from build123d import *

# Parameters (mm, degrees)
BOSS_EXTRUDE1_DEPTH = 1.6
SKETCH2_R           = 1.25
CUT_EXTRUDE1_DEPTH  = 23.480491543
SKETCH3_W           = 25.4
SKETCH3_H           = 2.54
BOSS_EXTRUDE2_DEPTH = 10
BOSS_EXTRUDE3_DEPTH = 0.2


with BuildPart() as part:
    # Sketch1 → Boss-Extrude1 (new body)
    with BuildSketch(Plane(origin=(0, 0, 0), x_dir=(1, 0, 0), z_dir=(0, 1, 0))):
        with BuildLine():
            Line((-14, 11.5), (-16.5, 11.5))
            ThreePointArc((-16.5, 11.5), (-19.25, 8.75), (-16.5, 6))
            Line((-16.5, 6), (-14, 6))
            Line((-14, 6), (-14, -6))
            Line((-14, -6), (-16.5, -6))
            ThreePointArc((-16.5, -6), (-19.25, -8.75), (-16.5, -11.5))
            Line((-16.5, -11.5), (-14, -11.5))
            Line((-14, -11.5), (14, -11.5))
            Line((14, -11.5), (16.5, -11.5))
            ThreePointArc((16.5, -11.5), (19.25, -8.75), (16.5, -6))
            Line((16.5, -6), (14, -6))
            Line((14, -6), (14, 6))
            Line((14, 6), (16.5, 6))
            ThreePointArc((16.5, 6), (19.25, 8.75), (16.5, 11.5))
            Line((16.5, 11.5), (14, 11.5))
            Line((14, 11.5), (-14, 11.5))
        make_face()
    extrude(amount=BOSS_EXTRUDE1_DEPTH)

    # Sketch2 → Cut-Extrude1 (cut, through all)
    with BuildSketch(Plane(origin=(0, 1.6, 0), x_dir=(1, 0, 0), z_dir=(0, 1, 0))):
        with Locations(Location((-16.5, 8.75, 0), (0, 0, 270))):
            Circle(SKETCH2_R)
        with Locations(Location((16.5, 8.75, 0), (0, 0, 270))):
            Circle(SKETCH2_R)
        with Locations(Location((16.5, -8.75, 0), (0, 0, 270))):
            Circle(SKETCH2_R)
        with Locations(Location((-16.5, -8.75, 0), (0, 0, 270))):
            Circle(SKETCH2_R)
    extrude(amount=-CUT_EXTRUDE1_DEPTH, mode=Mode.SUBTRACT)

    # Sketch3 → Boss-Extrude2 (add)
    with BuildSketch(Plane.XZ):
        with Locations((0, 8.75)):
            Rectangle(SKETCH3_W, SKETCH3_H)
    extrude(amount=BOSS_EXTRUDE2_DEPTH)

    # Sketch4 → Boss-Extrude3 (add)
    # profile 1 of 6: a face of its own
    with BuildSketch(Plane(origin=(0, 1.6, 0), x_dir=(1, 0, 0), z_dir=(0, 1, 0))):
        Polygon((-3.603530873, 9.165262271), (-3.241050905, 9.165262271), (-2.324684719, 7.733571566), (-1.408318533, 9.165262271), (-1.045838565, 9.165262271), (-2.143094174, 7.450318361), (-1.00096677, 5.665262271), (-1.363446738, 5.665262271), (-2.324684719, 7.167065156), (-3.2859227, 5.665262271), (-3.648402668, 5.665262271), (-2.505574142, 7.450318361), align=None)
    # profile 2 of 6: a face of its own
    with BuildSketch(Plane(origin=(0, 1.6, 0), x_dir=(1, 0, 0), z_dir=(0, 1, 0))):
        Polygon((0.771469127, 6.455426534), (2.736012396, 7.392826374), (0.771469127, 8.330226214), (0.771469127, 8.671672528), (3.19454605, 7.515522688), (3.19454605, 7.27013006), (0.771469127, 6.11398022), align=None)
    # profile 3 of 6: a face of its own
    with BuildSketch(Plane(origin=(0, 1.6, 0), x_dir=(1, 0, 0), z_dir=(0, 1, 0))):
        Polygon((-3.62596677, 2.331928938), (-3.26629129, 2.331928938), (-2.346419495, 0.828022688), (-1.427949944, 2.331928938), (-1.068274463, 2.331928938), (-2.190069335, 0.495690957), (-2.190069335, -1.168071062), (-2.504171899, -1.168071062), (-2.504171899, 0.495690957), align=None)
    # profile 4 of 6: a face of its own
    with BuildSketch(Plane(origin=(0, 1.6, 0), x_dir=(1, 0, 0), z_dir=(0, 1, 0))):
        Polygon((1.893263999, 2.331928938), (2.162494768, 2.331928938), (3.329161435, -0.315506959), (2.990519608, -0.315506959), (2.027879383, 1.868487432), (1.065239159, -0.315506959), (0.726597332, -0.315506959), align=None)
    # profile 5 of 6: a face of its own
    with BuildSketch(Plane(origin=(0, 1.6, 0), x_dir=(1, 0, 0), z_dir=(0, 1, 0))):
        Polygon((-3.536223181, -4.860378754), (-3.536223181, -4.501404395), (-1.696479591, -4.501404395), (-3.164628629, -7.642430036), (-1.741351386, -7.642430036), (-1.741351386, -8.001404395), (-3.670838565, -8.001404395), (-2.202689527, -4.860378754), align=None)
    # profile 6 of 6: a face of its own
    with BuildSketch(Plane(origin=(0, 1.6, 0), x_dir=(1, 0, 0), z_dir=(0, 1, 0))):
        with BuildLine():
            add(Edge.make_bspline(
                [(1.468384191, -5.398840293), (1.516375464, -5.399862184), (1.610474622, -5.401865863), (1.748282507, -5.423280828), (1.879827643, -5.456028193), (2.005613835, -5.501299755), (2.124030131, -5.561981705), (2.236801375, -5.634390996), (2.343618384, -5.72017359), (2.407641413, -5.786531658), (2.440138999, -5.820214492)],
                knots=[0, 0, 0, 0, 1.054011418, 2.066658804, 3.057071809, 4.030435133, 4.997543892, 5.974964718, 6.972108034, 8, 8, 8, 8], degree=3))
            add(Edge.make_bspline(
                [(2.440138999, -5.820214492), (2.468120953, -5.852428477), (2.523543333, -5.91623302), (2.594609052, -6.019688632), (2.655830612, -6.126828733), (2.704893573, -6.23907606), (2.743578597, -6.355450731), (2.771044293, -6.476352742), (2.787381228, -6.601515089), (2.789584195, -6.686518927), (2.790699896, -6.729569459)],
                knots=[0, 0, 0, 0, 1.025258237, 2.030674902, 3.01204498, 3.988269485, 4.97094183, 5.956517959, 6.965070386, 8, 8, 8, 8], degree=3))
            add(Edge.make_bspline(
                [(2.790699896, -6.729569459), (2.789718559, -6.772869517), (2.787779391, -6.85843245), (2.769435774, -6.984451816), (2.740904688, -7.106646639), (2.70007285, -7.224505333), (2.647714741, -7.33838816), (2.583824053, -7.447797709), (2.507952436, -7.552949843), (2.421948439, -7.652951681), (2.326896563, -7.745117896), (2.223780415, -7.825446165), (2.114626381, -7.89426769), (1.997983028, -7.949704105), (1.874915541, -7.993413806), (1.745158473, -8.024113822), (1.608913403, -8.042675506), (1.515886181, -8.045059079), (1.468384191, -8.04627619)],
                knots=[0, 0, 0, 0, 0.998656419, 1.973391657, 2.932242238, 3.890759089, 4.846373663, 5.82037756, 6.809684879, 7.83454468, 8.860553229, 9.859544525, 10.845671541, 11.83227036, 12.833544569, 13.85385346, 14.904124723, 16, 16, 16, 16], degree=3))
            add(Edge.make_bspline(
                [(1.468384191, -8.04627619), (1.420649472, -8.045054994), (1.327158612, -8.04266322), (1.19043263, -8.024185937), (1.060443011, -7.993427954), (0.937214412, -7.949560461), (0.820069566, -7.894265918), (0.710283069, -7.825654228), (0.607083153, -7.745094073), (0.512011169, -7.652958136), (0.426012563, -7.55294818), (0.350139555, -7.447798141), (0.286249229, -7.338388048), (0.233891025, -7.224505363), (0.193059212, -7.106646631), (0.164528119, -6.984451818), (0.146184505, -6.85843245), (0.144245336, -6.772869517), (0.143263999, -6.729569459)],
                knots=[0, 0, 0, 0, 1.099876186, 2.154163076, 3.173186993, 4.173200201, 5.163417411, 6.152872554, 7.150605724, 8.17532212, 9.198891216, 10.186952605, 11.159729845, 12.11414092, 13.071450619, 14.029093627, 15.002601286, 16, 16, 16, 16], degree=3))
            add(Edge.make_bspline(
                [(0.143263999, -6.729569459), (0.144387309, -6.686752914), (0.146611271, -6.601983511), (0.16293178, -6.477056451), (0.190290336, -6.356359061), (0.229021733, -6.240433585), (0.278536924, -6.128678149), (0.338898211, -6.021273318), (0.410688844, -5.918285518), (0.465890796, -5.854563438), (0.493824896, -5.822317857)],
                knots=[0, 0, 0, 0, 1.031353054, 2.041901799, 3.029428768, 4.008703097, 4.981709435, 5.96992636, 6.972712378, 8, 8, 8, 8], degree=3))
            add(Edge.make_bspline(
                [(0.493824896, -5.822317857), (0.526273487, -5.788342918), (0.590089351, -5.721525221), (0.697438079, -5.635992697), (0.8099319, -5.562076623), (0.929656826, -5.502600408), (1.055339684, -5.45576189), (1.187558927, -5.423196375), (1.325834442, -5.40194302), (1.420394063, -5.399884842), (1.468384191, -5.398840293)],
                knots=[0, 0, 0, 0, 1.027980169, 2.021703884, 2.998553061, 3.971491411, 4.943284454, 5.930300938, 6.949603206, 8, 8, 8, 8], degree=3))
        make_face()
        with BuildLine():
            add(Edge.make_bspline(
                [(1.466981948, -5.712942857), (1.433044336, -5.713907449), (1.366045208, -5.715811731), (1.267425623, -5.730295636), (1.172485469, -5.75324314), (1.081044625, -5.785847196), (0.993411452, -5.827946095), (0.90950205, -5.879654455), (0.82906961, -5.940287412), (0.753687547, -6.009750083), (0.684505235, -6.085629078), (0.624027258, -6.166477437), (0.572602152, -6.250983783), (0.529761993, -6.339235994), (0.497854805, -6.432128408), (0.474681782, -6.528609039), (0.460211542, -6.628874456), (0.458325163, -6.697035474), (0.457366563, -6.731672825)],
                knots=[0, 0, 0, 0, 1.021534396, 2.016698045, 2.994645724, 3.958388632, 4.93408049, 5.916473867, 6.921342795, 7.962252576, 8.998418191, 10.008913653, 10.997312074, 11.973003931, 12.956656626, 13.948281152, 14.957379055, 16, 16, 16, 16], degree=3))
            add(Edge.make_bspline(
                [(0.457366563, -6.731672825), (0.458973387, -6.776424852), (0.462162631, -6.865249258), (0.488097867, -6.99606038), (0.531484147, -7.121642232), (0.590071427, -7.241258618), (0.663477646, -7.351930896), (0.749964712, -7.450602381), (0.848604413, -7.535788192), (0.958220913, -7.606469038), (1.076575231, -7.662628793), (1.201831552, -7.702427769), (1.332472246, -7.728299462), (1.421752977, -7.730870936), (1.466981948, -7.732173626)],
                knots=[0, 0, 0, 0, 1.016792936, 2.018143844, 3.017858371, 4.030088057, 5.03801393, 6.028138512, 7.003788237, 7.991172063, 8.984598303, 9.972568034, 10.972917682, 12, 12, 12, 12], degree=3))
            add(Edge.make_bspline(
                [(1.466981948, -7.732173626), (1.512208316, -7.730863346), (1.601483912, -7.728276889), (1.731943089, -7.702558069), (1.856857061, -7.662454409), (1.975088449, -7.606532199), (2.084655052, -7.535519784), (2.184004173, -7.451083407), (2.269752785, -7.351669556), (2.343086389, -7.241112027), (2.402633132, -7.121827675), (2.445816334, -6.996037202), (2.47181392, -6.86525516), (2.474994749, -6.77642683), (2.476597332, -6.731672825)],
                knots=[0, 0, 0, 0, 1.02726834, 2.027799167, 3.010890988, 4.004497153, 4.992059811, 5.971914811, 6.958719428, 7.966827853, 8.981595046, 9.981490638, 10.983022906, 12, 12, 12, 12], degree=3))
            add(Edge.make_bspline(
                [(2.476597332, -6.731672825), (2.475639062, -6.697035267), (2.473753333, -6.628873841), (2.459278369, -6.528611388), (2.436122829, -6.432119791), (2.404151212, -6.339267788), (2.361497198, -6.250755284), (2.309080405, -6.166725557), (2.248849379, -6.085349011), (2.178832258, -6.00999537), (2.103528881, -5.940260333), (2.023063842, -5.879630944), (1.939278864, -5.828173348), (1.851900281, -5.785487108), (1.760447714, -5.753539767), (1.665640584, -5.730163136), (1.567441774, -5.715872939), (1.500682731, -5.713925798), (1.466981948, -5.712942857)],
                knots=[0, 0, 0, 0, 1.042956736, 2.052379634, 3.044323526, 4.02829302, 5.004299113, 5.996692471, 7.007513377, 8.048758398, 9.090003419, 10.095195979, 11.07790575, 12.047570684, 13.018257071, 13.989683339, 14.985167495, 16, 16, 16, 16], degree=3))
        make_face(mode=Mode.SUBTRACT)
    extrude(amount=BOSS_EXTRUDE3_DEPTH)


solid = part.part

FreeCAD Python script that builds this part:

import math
import FreeCAD as App
import Part
import Sketcher
Q = App.Units.Quantity


def add_polygon(sketch, points):
    """Adds a closed chain of lines whose ends are joined by coincident constraints."""
    first, n = sketch.GeometryCount, len(points)
    for a, b in zip(points, points[1:] + points[:1]):
        sketch.addGeometry(Part.LineSegment(App.Vector(*a, 0), App.Vector(*b, 0)), False)
    for i in range(n):
        sketch.addConstraint(Sketcher.Constraint("Coincident", first + i, 2, first + (i + 1) % n, 1))

doc = App.newDocument("Part")
body = doc.addObject("PartDesign::Body", "Body")

sketch1 = doc.addObject("Sketcher::SketchObject", "Sketch")
body.addObject(sketch1)
sketch1.AttachmentSupport = (doc.XZ_Plane, [""])
sketch1.MapMode = "FlatFace"
sketch1.addGeometry([
    Part.ArcOfCircle(Part.Circle(App.Vector(-16.5, -8.8, 0), App.Vector(0, 0, 1), 2.8), math.radians(90), math.radians(270)),
    Part.LineSegment(App.Vector(-16.5, -6, 0), App.Vector(-14, -6, 0)),
    Part.LineSegment(App.Vector(-14, -6, 0), App.Vector(-14, 6, 0)),
    Part.LineSegment(App.Vector(-14, 6, 0), App.Vector(-16.5, 6, 0)),
    Part.ArcOfCircle(Part.Circle(App.Vector(-16.5, 8.8, 0), App.Vector(0, 0, 1), 2.8), math.radians(90), math.radians(270)),
    Part.LineSegment(App.Vector(-16.5, 11.5, 0), App.Vector(16.5, 11.5, 0)),
    Part.ArcOfCircle(Part.Circle(App.Vector(16.5, 8.8, 0), App.Vector(0, 0, 1), 2.8), math.radians(-90), math.radians(90)),
    Part.LineSegment(App.Vector(16.5, 6, 0), App.Vector(14, 6, 0)),
    Part.LineSegment(App.Vector(14, 6, 0), App.Vector(14, -6, 0)),
    Part.LineSegment(App.Vector(14, -6, 0), App.Vector(16.5, -6, 0)),
    Part.ArcOfCircle(Part.Circle(App.Vector(16.5, -8.8, 0), App.Vector(0, 0, 1), 2.8), math.radians(-90), math.radians(90)),
    Part.LineSegment(App.Vector(16.5, -11.5, 0), App.Vector(-16.5, -11.5, 0)),
], False)
sketch1.addConstraint([
    Sketcher.Constraint("Tangent", 0, 1, 1, 1),
    Sketcher.Constraint("Coincident", 1, 2, 2, 1),
    Sketcher.Constraint("Coincident", 2, 2, 3, 1),
    Sketcher.Constraint("Tangent", 3, 2, 4, 2),
    Sketcher.Constraint("Tangent", 4, 1, 5, 1),
    Sketcher.Constraint("Tangent", 5, 2, 6, 2),
    Sketcher.Constraint("Tangent", 6, 1, 7, 1),
    Sketcher.Constraint("Coincident", 7, 2, 8, 1),
    Sketcher.Constraint("Coincident", 8, 2, 9, 1),
    Sketcher.Constraint("Tangent", 9, 2, 10, 2),
    Sketcher.Constraint("Tangent", 10, 1, 11, 1),
    Sketcher.Constraint("Tangent", 11, 2, 0, 2),
    Sketcher.Constraint("Horizontal", 1),
    Sketcher.Constraint("Vertical", 2),
    Sketcher.Constraint("Horizontal", 3),
    Sketcher.Constraint("Horizontal", 5),
    Sketcher.Constraint("Horizontal", 7),
    Sketcher.Constraint("Vertical", 8),
    Sketcher.Constraint("Horizontal", 9),
    Sketcher.Constraint("Horizontal", 11),
    Sketcher.Constraint("Equal", 0, 4),
    Sketcher.Constraint("Equal", 4, 6),
    Sketcher.Constraint("Equal", 6, 10),
    Sketcher.Constraint("Symmetric", 0, 3, 6, 3, -1, 1),
    Sketcher.Constraint("Vertical", 0, 3, 4, 3),
    Sketcher.Constraint("Vertical", 6, 3, 10, 3),
    Sketcher.Constraint("Equal", 3, 7),
    Sketcher.Constraint("DistanceX", 5, 1, 5, 2, Q("33 mm")),
    Sketcher.Constraint("DistanceY", 2, 1, 2, 2, Q("12 mm")),
    Sketcher.Constraint("Radius", 0, Q("2.75 mm")),
    Sketcher.Constraint("DistanceX", 1, 1, 1, 2, Q("2.5 mm")),
])
pad1 = doc.addObject("PartDesign::Pad", "Pad")
body.addObject(pad1)
pad1.Profile = sketch1
pad1.Length = 1.6
pad1.Reversed = True

sketch2 = doc.addObject("Sketcher::SketchObject", "Sketch001")
body.addObject(sketch2)
sketch2.AttachmentSupport = (doc.XZ_Plane, [""])
sketch2.MapMode = "FlatFace"
sketch2.AttachmentOffset = App.Placement(App.Vector(0, 0, -1.6), App.Rotation())
sketch2.addGeometry([
    Part.Circle(App.Vector(-16.5, -8.8, 0), App.Vector(0, 0, 1), 1.2),
    Part.Circle(App.Vector(16.5, -8.8, 0), App.Vector(0, 0, 1), 1.2),
    Part.Circle(App.Vector(16.5, 8.8, 0), App.Vector(0, 0, 1), 1.2),
    Part.Circle(App.Vector(-16.5, 8.8, 0), App.Vector(0, 0, 1), 1.2),
], False)
sketch2.addConstraint([
    Sketcher.Constraint("Equal", 0, 1),
    Sketcher.Constraint("Equal", 1, 2),
    Sketcher.Constraint("Equal", 2, 3),
    Sketcher.Constraint("Symmetric", 0, 3, 2, 3, -1, 1),
    Sketcher.Constraint("Symmetric", 1, 3, 3, 3, -1, 1),
    Sketcher.Constraint("Symmetric", 0, 3, 1, 3, -2),
    Sketcher.Constraint("Diameter", 0, Q("2.5 mm")),
    Sketcher.Constraint("DistanceX", 0, 3, 1, 3, Q("33 mm")),
    Sketcher.Constraint("DistanceY", 1, 3, 2, 3, Q("17.5 mm")),
])
pocket1 = doc.addObject("PartDesign::Pocket", "Pocket")
body.addObject(pocket1)
pocket1.Profile = sketch2
pocket1.Type = "ThroughAll"
pocket1.Reversed = True

sketch3 = doc.addObject("Sketcher::SketchObject", "Sketch002")
body.addObject(sketch3)
sketch3.AttachmentSupport = (doc.XZ_Plane, [""])
sketch3.MapMode = "FlatFace"
add_polygon(sketch3, [(-12.7, 10), (-12.7, 7.5), (12.7, 7.5), (12.7, 10)])
sketch3.addConstraint([
    Sketcher.Constraint("Vertical", 0),
    Sketcher.Constraint("Horizontal", 1),
    Sketcher.Constraint("Vertical", 2),
    Sketcher.Constraint("Horizontal", 3),
    Sketcher.Constraint("DistanceX", 1, 1, 1, 2, Q("25.4 mm")),
    Sketcher.Constraint("DistanceY", 0, 2, 0, 1, Q("2.54 mm")),
    Sketcher.Constraint("DistanceX", 0, 2, -1, 1, Q("12.7 mm")),
    Sketcher.Constraint("DistanceY", -1, 1, 0, 2, Q("7.48 mm")),
])
pad2 = doc.addObject("PartDesign::Pad", "Pad001")
body.addObject(pad2)
pad2.Profile = sketch3
pad2.Length = 10

sketch4 = doc.addObject("Sketcher::SketchObject", "Sketch003")
body.addObject(sketch4)
sketch4.AttachmentSupport = (doc.XZ_Plane, [""])
sketch4.MapMode = "FlatFace"
sketch4.AttachmentOffset = App.Placement(App.Vector(0, 0, -1.6), App.Rotation())
add_polygon(sketch4, [(-3.241051, -9.165262), (-3.603531, -9.165262), (-2.505574, -7.450318), (-3.648403, -5.665262), (-3.285923, -5.665262), (-2.324685, -7.167065), (-1.363447, -5.665262), (-1.000967, -5.665262), (-2.143094, -7.450318), (-1.045839, -9.165262), (-1.408319, -9.165262), (-2.324685, -7.733572)])
add_polygon(sketch4, [(2.736012, -7.392826), (0.771469, -6.455427), (0.771469, -6.11398), (3.194546, -7.27013), (3.194546, -7.515523), (0.771469, -8.671673), (0.771469, -8.330226)])
add_polygon(sketch4, [(-3.266291, -2.331929), (-3.625967, -2.331929), (-2.504172, -0.495691), (-2.504172, 1.168071), (-2.190069, 1.168071), (-2.190069, -0.495691), (-1.068274, -2.331929), (-1.42795, -2.331929), (-2.346419, -0.828023)])
add_polygon(sketch4, [(2.162495, -2.331929), (1.893264, -2.331929), (0.726597, 0.315507), (1.065239, 0.315507), (2.027879, -1.868487), (2.99052, 0.315507), (3.329161, 0.315507)])
add_polygon(sketch4, [(-3.536223, 4.501404), (-3.536223, 4.860379), (-2.20269, 4.860379), (-3.670839, 8.001404), (-1.741351, 8.001404), (-1.741351, 7.64243), (-3.164629, 7.64243), (-1.69648, 4.501404)])
sketch4.addGeometry(Part.BSplineCurve([App.Vector(1.468384, 5.39884, 0), App.Vector(1.516375, 5.399862, 0), App.Vector(1.610475, 5.401866, 0), App.Vector(1.748283, 5.423281, 0), App.Vector(1.879828, 5.456028, 0), App.Vector(2.005614, 5.5013, 0), App.Vector(2.12403, 5.561982, 0), App.Vector(2.236801, 5.634391, 0), App.Vector(2.343618, 5.720174, 0), App.Vector(2.407641, 5.786532, 0), App.Vector(2.440139, 5.820214, 0)], [4, 1, 1, 1, 1, 1, 1, 1, 4], [0, 1.054011418, 2.066658804, 3.057071809, 4.030435133, 4.997543892, 5.974964718, 6.972108034, 8], False, 3, [1, 1, 1, 1, 1, 1, 1, 1, 1, 1, 1], False), False)
sketch4.addGeometry(Part.BSplineCurve([App.Vector(0.493825, 5.822318, 0), App.Vector(0.526273, 5.788343, 0), App.Vector(0.590089, 5.721525, 0), App.Vector(0.697438, 5.635993, 0), App.Vector(0.809932, 5.562077, 0), App.Vector(0.929657, 5.5026, 0), App.Vector(1.05534, 5.455762, 0), App.Vector(1.187559, 5.423196, 0), App.Vector(1.325834, 5.401943, 0), App.Vector(1.420394, 5.399885, 0), App.Vector(1.468384, 5.39884, 0)], [4, 1, 1, 1, 1, 1, 1, 1, 4], [0, 1.027980169, 2.021703884, 2.998553061, 3.971491411, 4.943284454, 5.930300938, 6.949603206, 8], False, 3, [1, 1, 1, 1, 1, 1, 1, 1, 1, 1, 1], False), False)
sketch4.addGeometry(Part.BSplineCurve([App.Vector(0.143264, 6.729569, 0), App.Vector(0.144387, 6.686753, 0), App.Vector(0.146611, 6.601984, 0), App.Vector(0.162932, 6.477056, 0), App.Vector(0.19029, 6.356359, 0), App.Vector(0.229022, 6.240434, 0), App.Vector(0.278537, 6.128678, 0), App.Vector(0.338898, 6.021273, 0), App.Vector(0.410689, 5.918286, 0), App.Vector(0.465891, 5.854563, 0), App.Vector(0.493825, 5.822318, 0)], [4, 1, 1, 1, 1, 1, 1, 1, 4], [0, 1.031353054, 2.041901799, 3.029428768, 4.008703097, 4.981709435, 5.96992636, 6.972712378, 8], False, 3, [1, 1, 1, 1, 1, 1, 1, 1, 1, 1, 1], False), False)
sketch4.addGeometry(Part.BSplineCurve([App.Vector(1.468384, 8.046276, 0), App.Vector(1.420649, 8.045055, 0), App.Vector(1.327159, 8.042663, 0), App.Vector(1.190433, 8.024186, 0), App.Vector(1.060443, 7.993428, 0), App.Vector(0.937214, 7.94956, 0), App.Vector(0.82007, 7.894266, 0), App.Vector(0.710283, 7.825654, 0), App.Vector(0.607083, 7.745094, 0), App.Vector(0.512011, 7.652958, 0), App.Vector(0.426013, 7.552948, 0), App.Vector(0.35014, 7.447798, 0), App.Vector(0.286249, 7.338388, 0), App.Vector(0.233891, 7.224505, 0), App.Vector(0.193059, 7.106647, 0), App.Vector(0.164528, 6.984452, 0), App.Vector(0.146185, 6.858432, 0), App.Vector(0.144245, 6.77287, 0), App.Vector(0.143264, 6.729569, 0)], [4, 1, 1, 1, 1, 1, 1, 1, 1, 1, 1, 1, 1, 1, 1, 1, 4], [0, 1.099876186, 2.154163076, 3.173186993, 4.173200201, 5.163417411, 6.152872554, 7.150605724, 8.17532212, 9.198891216, 10.186952605, 11.159729845, 12.11414092, 13.071450619, 14.029093627, 15.002601286, 16], False, 3, [1, 1, 1, 1, 1, 1, 1, 1, 1, 1, 1, 1, 1, 1, 1, 1, 1, 1, 1], False), False)
sketch4.addGeometry(Part.BSplineCurve([App.Vector(2.7907, 6.729569, 0), App.Vector(2.789719, 6.77287, 0), App.Vector(2.787779, 6.858432, 0), App.Vector(2.769436, 6.984452, 0), App.Vector(2.740905, 7.106647, 0), App.Vector(2.700073, 7.224505, 0), App.Vector(2.647715, 7.338388, 0), App.Vector(2.583824, 7.447798, 0), App.Vector(2.507952, 7.55295, 0), App.Vector(2.421948, 7.652952, 0), App.Vector(2.326897, 7.745118, 0), App.Vector(2.22378, 7.825446, 0), App.Vector(2.114626, 7.894268, 0), App.Vector(1.997983, 7.949704, 0), App.Vector(1.874916, 7.993414, 0), App.Vector(1.745158, 8.024114, 0), App.Vector(1.608913, 8.042676, 0), App.Vector(1.515886, 8.045059, 0), App.Vector(1.468384, 8.046276, 0)], [4, 1, 1, 1, 1, 1, 1, 1, 1, 1, 1, 1, 1, 1, 1, 1, 4], [0, 0.998656419, 1.973391657, 2.932242238, 3.890759089, 4.846373663, 5.82037756, 6.809684879, 7.83454468, 8.860553229, 9.859544525, 10.845671541, 11.83227036, 12.833544569, 13.85385346, 14.904124723, 16], False, 3, [1, 1, 1, 1, 1, 1, 1, 1, 1, 1, 1, 1, 1, 1, 1, 1, 1, 1, 1], False), False)
sketch4.addGeometry(Part.BSplineCurve([App.Vector(2.440139, 5.820214, 0), App.Vector(2.468121, 5.852428, 0), App.Vector(2.523543, 5.916233, 0), App.Vector(2.594609, 6.019689, 0), App.Vector(2.655831, 6.126829, 0), App.Vector(2.704894, 6.239076, 0), App.Vector(2.743579, 6.355451, 0), App.Vector(2.771044, 6.476353, 0), App.Vector(2.787381, 6.601515, 0), App.Vector(2.789584, 6.686519, 0), App.Vector(2.7907, 6.729569, 0)], [4, 1, 1, 1, 1, 1, 1, 1, 4], [0, 1.025258237, 2.030674902, 3.01204498, 3.988269485, 4.97094183, 5.956517959, 6.965070386, 8], False, 3, [1, 1, 1, 1, 1, 1, 1, 1, 1, 1, 1], False), False)
sketch4.addGeometry(Part.BSplineCurve([App.Vector(2.476597, 6.731673, 0), App.Vector(2.475639, 6.697035, 0), App.Vector(2.473753, 6.628874, 0), App.Vector(2.459278, 6.528611, 0), App.Vector(2.436123, 6.43212, 0), App.Vector(2.404151, 6.339268, 0), App.Vector(2.361497, 6.250755, 0), App.Vector(2.30908, 6.166726, 0), App.Vector(2.248849, 6.085349, 0), App.Vector(2.178832, 6.009995, 0), App.Vector(2.103529, 5.94026, 0), App.Vector(2.023064, 5.879631, 0), App.Vector(1.939279, 5.828173, 0), App.Vector(1.8519, 5.785487, 0), App.Vector(1.760448, 5.75354, 0), App.Vector(1.665641, 5.730163, 0), App.Vector(1.567442, 5.715873, 0), App.Vector(1.500683, 5.713926, 0), App.Vector(1.466982, 5.712943, 0)], [4, 1, 1, 1, 1, 1, 1, 1, 1, 1, 1, 1, 1, 1, 1, 1, 4], [0, 1.042956736, 2.052379634, 3.044323526, 4.02829302, 5.004299113, 5.996692471, 7.007513377, 8.048758398, 9.090003419, 10.095195979, 11.07790575, 12.047570684, 13.018257071, 13.989683339, 14.985167495, 16], False, 3, [1, 1, 1, 1, 1, 1, 1, 1, 1, 1, 1, 1, 1, 1, 1, 1, 1, 1, 1], False), False)
sketch4.addGeometry(Part.BSplineCurve([App.Vector(1.466982, 7.732174, 0), App.Vector(1.512208, 7.730863, 0), App.Vector(1.601484, 7.728277, 0), App.Vector(1.731943, 7.702558, 0), App.Vector(1.856857, 7.662454, 0), App.Vector(1.975088, 7.606532, 0), App.Vector(2.084655, 7.53552, 0), App.Vector(2.184004, 7.451083, 0), App.Vector(2.269753, 7.35167, 0), App.Vector(2.343086, 7.241112, 0), App.Vector(2.402633, 7.121828, 0), App.Vector(2.445816, 6.996037, 0), App.Vector(2.471814, 6.865255, 0), App.Vector(2.474995, 6.776427, 0), App.Vector(2.476597, 6.731673, 0)], [4, 1, 1, 1, 1, 1, 1, 1, 1, 1, 1, 1, 4], [0, 1.02726834, 2.027799167, 3.010890988, 4.004497153, 4.992059811, 5.971914811, 6.958719428, 7.966827853, 8.981595046, 9.981490638, 10.983022906, 12], False, 3, [1, 1, 1, 1, 1, 1, 1, 1, 1, 1, 1, 1, 1, 1, 1], False), False)
sketch4.addGeometry(Part.BSplineCurve([App.Vector(0.457367, 6.731673, 0), App.Vector(0.458973, 6.776425, 0), App.Vector(0.462163, 6.865249, 0), App.Vector(0.488098, 6.99606, 0), App.Vector(0.531484, 7.121642, 0), App.Vector(0.590071, 7.241259, 0), App.Vector(0.663478, 7.351931, 0), App.Vector(0.749965, 7.450602, 0), App.Vector(0.848604, 7.535788, 0), App.Vector(0.958221, 7.606469, 0), App.Vector(1.076575, 7.662629, 0), App.Vector(1.201832, 7.702428, 0), App.Vector(1.332472, 7.728299, 0), App.Vector(1.421753, 7.730871, 0), App.Vector(1.466982, 7.732174, 0)], [4, 1, 1, 1, 1, 1, 1, 1, 1, 1, 1, 1, 4], [0, 1.016792936, 2.018143844, 3.017858371, 4.030088057, 5.03801393, 6.028138512, 7.003788237, 7.991172063, 8.984598303, 9.972568034, 10.972917682, 12], False, 3, [1, 1, 1, 1, 1, 1, 1, 1, 1, 1, 1, 1, 1, 1, 1], False), False)
sketch4.addGeometry(Part.BSplineCurve([App.Vector(1.466982, 5.712943, 0), App.Vector(1.433044, 5.713907, 0), App.Vector(1.366045, 5.715812, 0), App.Vector(1.267426, 5.730296, 0), App.Vector(1.172485, 5.753243, 0), App.Vector(1.081045, 5.785847, 0), App.Vector(0.993411, 5.827946, 0), App.Vector(0.909502, 5.879654, 0), App.Vector(0.82907, 5.940287, 0), App.Vector(0.753688, 6.00975, 0), App.Vector(0.684505, 6.085629, 0), App.Vector(0.624027, 6.166477, 0), App.Vector(0.572602, 6.250984, 0), App.Vector(0.529762, 6.339236, 0), App.Vector(0.497855, 6.432128, 0), App.Vector(0.474682, 6.528609, 0), App.Vector(0.460212, 6.628874, 0), App.Vector(0.458325, 6.697035, 0), App.Vector(0.457367, 6.731673, 0)], [4, 1, 1, 1, 1, 1, 1, 1, 1, 1, 1, 1, 1, 1, 1, 1, 4], [0, 1.021534396, 2.016698045, 2.994645724, 3.958388632, 4.93408049, 5.916473867, 6.921342795, 7.962252576, 8.998418191, 10.008913653, 10.997312074, 11.973003931, 12.956656626, 13.948281152, 14.957379055, 16], False, 3, [1, 1, 1, 1, 1, 1, 1, 1, 1, 1, 1, 1, 1, 1, 1, 1, 1, 1, 1], False), False)
sketch4.addConstraint([
    Sketcher.Constraint("Block", 43),
    Sketcher.Constraint("Block", 44),
    Sketcher.Constraint("Block", 45),
    Sketcher.Constraint("Block", 46),
    Sketcher.Constraint("Block", 47),
    Sketcher.Constraint("Block", 48),
    Sketcher.Constraint("Block", 49),
    Sketcher.Constraint("Block", 50),
    Sketcher.Constraint("Block", 51),
    Sketcher.Constraint("Block", 52),
    Sketcher.Constraint("Horizontal", 0),
    Sketcher.Constraint("Horizontal", 3),
    Sketcher.Constraint("Horizontal", 6),
    Sketcher.Constraint("Horizontal", 9),
    Sketcher.Constraint("Vertical", 13),
    Sketcher.Constraint("Vertical", 15),
    Sketcher.Constraint("Vertical", 17),
    Sketcher.Constraint("Horizontal", 19),
    Sketcher.Constraint("Vertical", 21),
    Sketcher.Constraint("Horizontal", 22),
    Sketcher.Constraint("Vertical", 23),
    Sketcher.Constraint("Horizontal", 25),
    Sketcher.Constraint("Horizontal", 28),
    Sketcher.Constraint("Horizontal", 30),
    Sketcher.Constraint("Horizontal", 33),
    Sketcher.Constraint("Vertical", 35),
    Sketcher.Constraint("Horizontal", 36),
    Sketcher.Constraint("Horizontal", 38),
    Sketcher.Constraint("Vertical", 39),
    Sketcher.Constraint("Horizontal", 40),
    Sketcher.Constraint("Horizontal", 42),
    Sketcher.Constraint("Parallel", 4, 10),
    Sketcher.Constraint("Parallel", 5, 11),
    Sketcher.Constraint("Parallel", 37, 41),
    Sketcher.Constraint("Horizontal", 3, 2, 5, 2),
    Sketcher.Constraint("Horizontal", 1, 2, 7, 2),
    Sketcher.Constraint("Horizontal", 0, 2, 8, 2),
    Sketcher.Constraint("Horizontal", 20, 2, 23, 2),
    Sketcher.Constraint("Horizontal", 19, 2, 24, 2),
    Sketcher.Constraint("Horizontal", 27, 2, 28, 2),
    Sketcher.Constraint("Horizontal", 30, 2, 32, 2),
    Sketcher.Constraint("Vertical", 4, 2, 10, 2),
    Sketcher.Constraint("Vertical", 13, 2, 16, 2),
    Sketcher.Constraint("Equal", 0, 3),
    Sketcher.Constraint("Equal", 3, 6),
    Sketcher.Constraint("Equal", 6, 9),
    Sketcher.Constraint("Equal", 19, 25),
    Sketcher.Constraint("Equal", 30, 33),
    Sketcher.Constraint("Equal", 13, 17),
    Sketcher.Constraint("Equal", 35, 39),
    Sketcher.Constraint("Equal", 4, 5),
    Sketcher.Constraint("Equal", 14, 16),
    Sketcher.Constraint("Equal", 12, 18),
    Sketcher.Constraint("Equal", 20, 24),
    Sketcher.Constraint("Equal", 31, 32),
    Sketcher.Constraint("Equal", 29, 34),
    Sketcher.Constraint("DistanceY", 0, 2, 2, 2, Q("3.5 mm")),
    Sketcher.Constraint("DistanceY", 19, 2, 21, 2, Q("3.5 mm")),
    Sketcher.Constraint("DistanceX", 19, 2, 6, 2, Q("2.625 mm")),
    Sketcher.Constraint("Distance", 29, Q("2.8931 mm")),
    Sketcher.Constraint("DistanceX", 0, 2, 0, 1, Q("0.36248 mm")),
    Sketcher.Constraint("DistanceX", 28, 2, 28, 1, Q("0.269231 mm")),
    Sketcher.Constraint("DistanceX", 30, 1, 30, 2, Q("0.338642 mm")),
    Sketcher.Constraint("DistanceY", 17, 2, 12, 2, Q("1.8748 mm")),
    Sketcher.Constraint("DistanceY", 26, 2, 35, 2, Q("5.688401 mm")),
    Sketcher.Constraint("Distance", 7, Q("2.11917 mm")),
    Sketcher.Constraint("Distance", 12, Q("2.176729 mm")),
    Sketcher.Constraint("Distance", 14, Q("2.684769 mm")),
    Sketcher.Constraint("Distance", 20, Q("2.151788 mm")),
    Sketcher.Constraint("Distance", 26, Q("1.762192 mm")),
    Sketcher.Constraint("DistanceX", 19, 2, 19, 1, Q("0.359675 mm")),
    Sketcher.Constraint("DistanceX", 22, 1, 22, 2, Q("0.314103 mm")),
    Sketcher.Constraint("DistanceX", 36, 1, 36, 2, Q("1.333534 mm")),
    Sketcher.Constraint("DistanceX", 38, 1, 38, 2, Q("1.929487 mm")),
    Sketcher.Constraint("DistanceX", 40, 2, 40, 1, Q("1.423277 mm")),
    Sketcher.Constraint("DistanceY", 13, 1, 13, 2, Q("0.341446 mm")),
    Sketcher.Constraint("DistanceY", 15, 2, 15, 1, Q("0.245393 mm")),
    Sketcher.Constraint("DistanceY", 21, 1, 21, 2, Q("1.663762 mm")),
    Sketcher.Constraint("DistanceY", 35, 1, 35, 2, Q("0.358974 mm")),
    Sketcher.Constraint("DistanceX", 0, 2, -1, 1, Q("3.603531 mm")),
    Sketcher.Constraint("DistanceY", 1, 2, -1, 1, Q("7.450318 mm")),
    Sketcher.Constraint("DistanceX", 8, 2, -1, 1, Q("1.045839 mm")),
    Sketcher.Constraint("DistanceY", 10, 2, -1, 1, Q("7.733572 mm")),
    Sketcher.Constraint("DistanceX", -1, 1, 12, 2, Q("0.771469 mm")),
    Sketcher.Constraint("DistanceY", 13, 2, -1, 1, Q("6.11398 mm")),
    Sketcher.Constraint("DistanceY", 19, 2, -1, 1, Q("2.331929 mm")),
    Sketcher.Constraint("DistanceX", 20, 2, -1, 1, Q("2.504172 mm")),
    Sketcher.Constraint("DistanceX", 26, 2, -1, 1, Q("2.346419 mm")),
    Sketcher.Constraint("DistanceX", -1, 1, 30, 2, Q("1.065239 mm")),
    Sketcher.Constraint("DistanceX", -1, 1, 31, 2, Q("2.027879 mm")),
    Sketcher.Constraint("DistanceX", 36, 2, -1, 1, Q("2.20269 mm")),
    Sketcher.Constraint("DistanceX", 37, 2, -1, 1, Q("3.670839 mm")),
    Sketcher.Constraint("DistanceY", -1, 1, 39, 2, Q("7.64243 mm")),
    Sketcher.Constraint("DistanceX", 2, 2, 1, 2, Q("1.142829 mm")),
    Sketcher.Constraint("DistanceX", 4, 2, 7, 2, Q("0.181591 mm")),
    Sketcher.Constraint("DistanceY", 28, 2, 31, 2, Q("0.463442 mm")),
])
pad3 = doc.addObject("PartDesign::Pad", "Pad002")
body.addObject(pad3)
pad3.Profile = sketch4
pad3.Length = 0.2
pad3.Reversed = True

doc.recompute()
